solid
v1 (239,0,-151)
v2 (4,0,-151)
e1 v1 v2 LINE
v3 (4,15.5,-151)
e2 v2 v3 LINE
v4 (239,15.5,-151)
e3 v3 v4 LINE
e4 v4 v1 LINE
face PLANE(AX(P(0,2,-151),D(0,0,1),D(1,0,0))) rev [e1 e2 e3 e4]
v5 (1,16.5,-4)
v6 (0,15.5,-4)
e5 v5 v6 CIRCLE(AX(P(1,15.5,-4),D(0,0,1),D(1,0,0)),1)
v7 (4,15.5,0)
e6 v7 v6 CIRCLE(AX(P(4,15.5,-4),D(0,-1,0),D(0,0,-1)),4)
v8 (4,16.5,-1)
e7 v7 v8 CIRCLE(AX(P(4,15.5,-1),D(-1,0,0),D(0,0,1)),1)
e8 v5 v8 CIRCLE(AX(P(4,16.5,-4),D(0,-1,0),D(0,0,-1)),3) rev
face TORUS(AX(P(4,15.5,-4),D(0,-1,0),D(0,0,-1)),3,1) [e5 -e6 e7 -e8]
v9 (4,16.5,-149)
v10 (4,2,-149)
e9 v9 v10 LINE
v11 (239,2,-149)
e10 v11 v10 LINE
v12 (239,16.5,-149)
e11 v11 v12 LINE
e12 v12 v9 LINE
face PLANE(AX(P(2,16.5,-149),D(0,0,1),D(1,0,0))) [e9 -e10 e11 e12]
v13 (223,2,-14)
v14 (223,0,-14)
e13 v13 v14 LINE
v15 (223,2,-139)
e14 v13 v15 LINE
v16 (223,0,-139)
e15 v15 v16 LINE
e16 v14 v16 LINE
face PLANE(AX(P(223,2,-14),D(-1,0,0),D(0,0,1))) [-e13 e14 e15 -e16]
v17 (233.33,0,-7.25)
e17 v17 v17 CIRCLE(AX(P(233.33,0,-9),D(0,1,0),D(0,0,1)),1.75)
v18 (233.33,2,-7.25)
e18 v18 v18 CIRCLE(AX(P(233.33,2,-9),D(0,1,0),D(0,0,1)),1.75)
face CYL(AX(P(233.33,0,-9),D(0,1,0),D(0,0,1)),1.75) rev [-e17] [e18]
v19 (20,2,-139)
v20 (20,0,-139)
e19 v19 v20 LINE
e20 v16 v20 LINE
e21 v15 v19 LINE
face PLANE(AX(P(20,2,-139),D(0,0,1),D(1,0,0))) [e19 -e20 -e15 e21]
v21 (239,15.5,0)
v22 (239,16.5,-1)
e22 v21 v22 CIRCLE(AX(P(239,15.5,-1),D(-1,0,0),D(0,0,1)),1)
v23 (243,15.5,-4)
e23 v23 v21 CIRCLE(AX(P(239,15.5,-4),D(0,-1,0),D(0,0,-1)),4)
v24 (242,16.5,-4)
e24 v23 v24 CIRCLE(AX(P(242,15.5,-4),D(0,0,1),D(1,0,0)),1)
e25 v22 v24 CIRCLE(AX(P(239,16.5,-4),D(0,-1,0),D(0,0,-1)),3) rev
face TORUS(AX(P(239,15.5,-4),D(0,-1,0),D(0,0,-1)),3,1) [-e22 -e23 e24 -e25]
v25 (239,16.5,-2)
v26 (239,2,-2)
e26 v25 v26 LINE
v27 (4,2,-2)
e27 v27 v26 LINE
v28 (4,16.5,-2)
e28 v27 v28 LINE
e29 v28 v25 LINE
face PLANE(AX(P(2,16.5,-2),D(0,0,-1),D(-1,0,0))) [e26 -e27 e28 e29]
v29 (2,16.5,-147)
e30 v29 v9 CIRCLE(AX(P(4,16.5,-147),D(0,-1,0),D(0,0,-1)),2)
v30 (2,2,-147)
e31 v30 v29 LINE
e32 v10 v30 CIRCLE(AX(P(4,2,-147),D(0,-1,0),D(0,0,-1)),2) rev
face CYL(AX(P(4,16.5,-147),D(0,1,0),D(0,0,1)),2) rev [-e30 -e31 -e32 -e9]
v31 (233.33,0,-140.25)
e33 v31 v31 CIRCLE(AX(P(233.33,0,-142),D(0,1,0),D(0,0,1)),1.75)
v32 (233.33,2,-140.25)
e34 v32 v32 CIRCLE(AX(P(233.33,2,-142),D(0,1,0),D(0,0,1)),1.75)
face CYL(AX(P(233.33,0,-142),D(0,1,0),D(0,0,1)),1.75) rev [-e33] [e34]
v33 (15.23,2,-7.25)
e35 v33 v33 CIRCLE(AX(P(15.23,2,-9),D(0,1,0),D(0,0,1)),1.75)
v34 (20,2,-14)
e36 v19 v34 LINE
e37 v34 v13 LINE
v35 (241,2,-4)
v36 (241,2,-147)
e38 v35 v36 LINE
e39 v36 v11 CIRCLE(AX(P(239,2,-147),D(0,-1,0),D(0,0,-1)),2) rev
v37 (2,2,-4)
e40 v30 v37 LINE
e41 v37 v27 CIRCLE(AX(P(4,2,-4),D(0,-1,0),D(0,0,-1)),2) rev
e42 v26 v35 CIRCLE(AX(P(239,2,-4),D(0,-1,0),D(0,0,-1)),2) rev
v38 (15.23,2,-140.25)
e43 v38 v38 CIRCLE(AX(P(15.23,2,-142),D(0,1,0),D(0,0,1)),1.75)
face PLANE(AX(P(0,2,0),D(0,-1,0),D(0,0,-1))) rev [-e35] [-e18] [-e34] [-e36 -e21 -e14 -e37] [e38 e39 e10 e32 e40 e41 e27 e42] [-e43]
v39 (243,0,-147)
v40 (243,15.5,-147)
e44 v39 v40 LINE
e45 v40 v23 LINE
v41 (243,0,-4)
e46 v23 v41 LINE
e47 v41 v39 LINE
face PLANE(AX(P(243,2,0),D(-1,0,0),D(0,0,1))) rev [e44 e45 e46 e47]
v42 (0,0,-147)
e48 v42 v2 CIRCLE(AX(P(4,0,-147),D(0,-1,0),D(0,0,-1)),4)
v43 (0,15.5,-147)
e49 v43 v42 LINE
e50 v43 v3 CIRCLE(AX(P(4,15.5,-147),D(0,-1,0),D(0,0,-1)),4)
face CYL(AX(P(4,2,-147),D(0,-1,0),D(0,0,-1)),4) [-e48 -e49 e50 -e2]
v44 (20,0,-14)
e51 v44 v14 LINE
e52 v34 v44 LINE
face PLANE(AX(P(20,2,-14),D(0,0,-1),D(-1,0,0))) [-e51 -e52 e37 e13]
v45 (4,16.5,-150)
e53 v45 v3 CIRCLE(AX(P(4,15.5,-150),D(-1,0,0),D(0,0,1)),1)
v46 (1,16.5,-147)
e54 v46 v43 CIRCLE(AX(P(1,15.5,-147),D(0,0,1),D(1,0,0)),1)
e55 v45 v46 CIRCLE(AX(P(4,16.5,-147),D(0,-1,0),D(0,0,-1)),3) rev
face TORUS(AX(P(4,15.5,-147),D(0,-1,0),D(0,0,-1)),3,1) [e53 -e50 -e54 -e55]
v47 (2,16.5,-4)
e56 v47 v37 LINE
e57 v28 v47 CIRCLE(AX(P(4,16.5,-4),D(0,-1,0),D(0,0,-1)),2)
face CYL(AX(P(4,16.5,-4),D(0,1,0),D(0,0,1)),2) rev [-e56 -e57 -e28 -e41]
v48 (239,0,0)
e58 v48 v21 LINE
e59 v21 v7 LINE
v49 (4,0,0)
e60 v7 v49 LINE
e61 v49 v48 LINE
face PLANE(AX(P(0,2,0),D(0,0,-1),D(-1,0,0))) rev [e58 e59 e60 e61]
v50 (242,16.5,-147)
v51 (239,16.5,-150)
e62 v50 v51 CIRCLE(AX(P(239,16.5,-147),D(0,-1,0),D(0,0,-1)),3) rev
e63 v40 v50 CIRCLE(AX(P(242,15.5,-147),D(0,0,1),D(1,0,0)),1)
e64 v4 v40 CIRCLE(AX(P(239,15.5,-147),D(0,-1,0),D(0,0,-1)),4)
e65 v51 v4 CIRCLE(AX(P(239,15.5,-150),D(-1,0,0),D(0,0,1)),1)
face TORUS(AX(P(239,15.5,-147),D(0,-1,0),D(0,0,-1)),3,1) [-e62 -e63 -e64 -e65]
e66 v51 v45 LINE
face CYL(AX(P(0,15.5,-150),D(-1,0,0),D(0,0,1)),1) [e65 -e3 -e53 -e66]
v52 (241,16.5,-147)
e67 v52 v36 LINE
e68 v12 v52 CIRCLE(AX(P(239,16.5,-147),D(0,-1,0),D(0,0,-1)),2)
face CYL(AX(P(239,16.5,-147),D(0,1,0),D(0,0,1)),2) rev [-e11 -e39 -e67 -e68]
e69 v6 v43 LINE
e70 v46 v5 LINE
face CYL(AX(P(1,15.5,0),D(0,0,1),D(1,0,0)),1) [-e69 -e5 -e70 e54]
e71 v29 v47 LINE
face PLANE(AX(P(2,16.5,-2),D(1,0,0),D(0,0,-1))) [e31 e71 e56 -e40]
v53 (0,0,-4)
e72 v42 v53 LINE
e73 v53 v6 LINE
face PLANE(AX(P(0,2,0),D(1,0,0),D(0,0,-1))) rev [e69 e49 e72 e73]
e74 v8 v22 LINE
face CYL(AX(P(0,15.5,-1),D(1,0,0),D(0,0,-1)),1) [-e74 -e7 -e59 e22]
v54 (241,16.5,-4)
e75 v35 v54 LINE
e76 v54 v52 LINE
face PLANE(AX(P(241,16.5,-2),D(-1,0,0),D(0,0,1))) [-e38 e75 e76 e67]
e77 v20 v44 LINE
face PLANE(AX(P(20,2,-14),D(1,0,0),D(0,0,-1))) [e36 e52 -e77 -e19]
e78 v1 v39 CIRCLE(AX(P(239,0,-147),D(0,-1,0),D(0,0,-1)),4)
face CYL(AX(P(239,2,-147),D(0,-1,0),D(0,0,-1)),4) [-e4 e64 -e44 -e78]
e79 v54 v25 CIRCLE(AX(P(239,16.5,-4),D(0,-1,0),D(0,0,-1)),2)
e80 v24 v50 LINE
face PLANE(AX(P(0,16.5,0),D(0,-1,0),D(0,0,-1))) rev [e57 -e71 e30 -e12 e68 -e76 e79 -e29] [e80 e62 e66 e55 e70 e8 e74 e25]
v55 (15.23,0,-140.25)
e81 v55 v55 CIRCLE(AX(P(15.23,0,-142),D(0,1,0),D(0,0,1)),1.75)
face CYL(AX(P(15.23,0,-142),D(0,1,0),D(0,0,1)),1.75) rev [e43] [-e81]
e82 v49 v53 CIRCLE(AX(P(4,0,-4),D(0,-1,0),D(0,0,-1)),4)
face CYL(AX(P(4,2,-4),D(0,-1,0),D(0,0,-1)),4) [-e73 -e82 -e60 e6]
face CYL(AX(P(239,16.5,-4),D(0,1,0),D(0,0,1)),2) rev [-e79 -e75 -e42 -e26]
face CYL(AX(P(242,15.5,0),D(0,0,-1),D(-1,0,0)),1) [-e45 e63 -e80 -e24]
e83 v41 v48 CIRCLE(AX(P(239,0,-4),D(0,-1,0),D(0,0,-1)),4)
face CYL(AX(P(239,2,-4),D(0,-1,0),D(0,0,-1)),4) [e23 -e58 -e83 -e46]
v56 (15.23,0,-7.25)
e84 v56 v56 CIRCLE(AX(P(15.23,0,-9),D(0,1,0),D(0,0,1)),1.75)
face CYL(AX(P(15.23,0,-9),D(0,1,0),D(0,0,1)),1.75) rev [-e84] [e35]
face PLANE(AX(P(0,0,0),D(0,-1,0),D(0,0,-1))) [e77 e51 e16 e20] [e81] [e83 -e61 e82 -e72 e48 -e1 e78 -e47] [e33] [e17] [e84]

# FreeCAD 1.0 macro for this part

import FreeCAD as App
import Part
import Sketcher


def edges_at(feature, points):
    """Names of the edges that pass closest to the given points."""
    edges = feature.Shape.Edges
    near = lambda p: min(range(len(edges)), key=lambda i: edges[i].distToShape(Part.Vertex(*p))[0])
    return sorted({f"Edge{near(p) + 1}" for p in points})

doc = App.newDocument("Part")
body = doc.addObject("PartDesign::Body", "Body")

# Sketch on XZ plane
sketch1 = body.newObject("Sketcher::SketchObject", "Sketch")
sketch1.AttachmentSupport = (doc.getObject("XZ_Plane"), [""])
sketch1.MapMode = "FlatFace"
sketch1.addGeometry([
    Part.LineSegment(App.Vector(0, -151, 0), App.Vector(0, 0, 0)),  # 0
    Part.LineSegment(App.Vector(0, 0, 0), App.Vector(243, 0, 0)),  # 1
    Part.LineSegment(App.Vector(243, 0, 0), App.Vector(243, -151, 0)),  # 2
    Part.LineSegment(App.Vector(243, -151, 0), App.Vector(0, -151, 0)),  # 3
    Part.LineSegment(App.Vector(223, -14, 0), App.Vector(20, -14, 0)),  # 4
    Part.LineSegment(App.Vector(20, -14, 0), App.Vector(20, -139, 0)),  # 5
    Part.LineSegment(App.Vector(20, -139, 0), App.Vector(223, -139, 0)),  # 6
    Part.LineSegment(App.Vector(223, -139, 0), App.Vector(223, -14, 0)),  # 7
], False)
sketch1.addConstraint([
    Sketcher.Constraint("Coincident", 0, 2, 1, 1),
    Sketcher.Constraint("Coincident", 1, 2, 2, 1),
    Sketcher.Constraint("Coincident", 2, 2, 3, 1),
    Sketcher.Constraint("Coincident", 3, 2, 0, 1),
    Sketcher.Constraint("Coincident", 4, 2, 5, 1),
    Sketcher.Constraint("Coincident", 5, 2, 6, 1),
    Sketcher.Constraint("Coincident", 6, 2, 7, 1),
    Sketcher.Constraint("Coincident", 7, 2, 4, 1),
    Sketcher.Constraint("Vertical", 0),
    Sketcher.Constraint("Horizontal", 1),
    Sketcher.Constraint("Vertical", 2),
    Sketcher.Constraint("Horizontal", 3),
    Sketcher.Constraint("Horizontal", 4),
    Sketcher.Constraint("Vertical", 5),
    Sketcher.Constraint("Horizontal", 6),
    Sketcher.Constraint("Vertical", 7),
    Sketcher.Constraint("Coincident", 0, 2, -1, 1),
    Sketcher.Constraint("DistanceX", 1, 1, 1, 2, 243.0),
    Sketcher.Constraint("DistanceX", 4, 2, 4, 1, 203.0),
    Sketcher.Constraint("DistanceY", 0, 1, 0, 2, 151.0),
    Sketcher.Constraint("DistanceY", 5, 2, 5, 1, 125.0),
    Sketcher.Constraint("DistanceX", -1, 1, 4, 2, 20.0),
    Sketcher.Constraint("DistanceY", 4, 2, -1, 1, 14.0),
])
pad1 = body.newObject("PartDesign::Pad", "Pad")
pad1.Profile = sketch1
pad1.Length = 2
pad1.Reversed = True

# Sketch on XZ plane
sketch2 = body.newObject("Sketcher::SketchObject", "Sketch001")
sketch2.AttachmentSupport = (doc.getObject("XZ_Plane"), [""])
sketch2.MapMode = "FlatFace"
sketch2.AttachmentOffset = App.Placement(App.Vector(0, 0, -2), App.Rotation())
sketch2.addGeometry([
    Part.LineSegment(App.Vector(0, -151, 0), App.Vector(0, 0, 0)),  # 0
    Part.LineSegment(App.Vector(0, 0, 0), App.Vector(243, 0, 0)),  # 1
    Part.LineSegment(App.Vector(243, 0, 0), App.Vector(243, -151, 0)),  # 2
    Part.LineSegment(App.Vector(243, -151, 0), App.Vector(0, -151, 0)),  # 3
    Part.LineSegment(App.Vector(241, -2, 0), App.Vector(2, -2, 0)),  # 4
    Part.LineSegment(App.Vector(2, -2, 0), App.Vector(2, -149, 0)),  # 5
    Part.LineSegment(App.Vector(2, -149, 0), App.Vector(241, -149, 0)),  # 6
    Part.LineSegment(App.Vector(241, -149, 0), App.Vector(241, -2, 0)),  # 7
], False)
sketch2.addConstraint([
    Sketcher.Constraint("Coincident", 0, 2, 1, 1),
    Sketcher.Constraint("Coincident", 1, 2, 2, 1),
    Sketcher.Constraint("Coincident", 2, 2, 3, 1),
    Sketcher.Constraint("Coincident", 3, 2, 0, 1),
    Sketcher.Constraint("Coincident", 4, 2, 5, 1),
    Sketcher.Constraint("Coincident", 5, 2, 6, 1),
    Sketcher.Constraint("Coincident", 6, 2, 7, 1),
    Sketcher.Constraint("Coincident", 7, 2, 4, 1),
    Sketcher.Constraint("Vertical", 0),
    Sketcher.Constraint("Horizontal", 1),
    Sketcher.Constraint("Vertical", 2),
    Sketcher.Constraint("Horizontal", 3),
    Sketcher.Constraint("Horizontal", 4),
    Sketcher.Constraint("Vertical", 5),
    Sketcher.Constraint("Horizontal", 6),
    Sketcher.Constraint("Vertical", 7),
    Sketcher.Constraint("Coincident", 0, 2, -1, 1),
    Sketcher.Constraint("DistanceX", 1, 1, 1, 2, 243.0),
    Sketcher.Constraint("DistanceX", 4, 2, 4, 1, 239.0),
    Sketcher.Constraint("DistanceY", 0, 1, 0, 2, 151.0),
    Sketcher.Constraint("DistanceY", 5, 2, 5, 1, 147.0),
    Sketcher.Constraint("DistanceX", -1, 1, 4, 2, 2.0),
    Sketcher.Constraint("DistanceY", 4, 2, -1, 1, 2.0),
])
pad2 = body.newObject("PartDesign::Pad", "Pad001")
pad2.Profile = sketch2
pad2.Length = 14.5
pad2.Reversed = True

# Sketch on XZ plane
sketch3 = body.newObject("Sketcher::SketchObject", "Sketch002")
sketch3.AttachmentSupport = (doc.getObject("XZ_Plane"), [""])
sketch3.MapMode = "FlatFace"
sketch3.AttachmentOffset = App.Placement(App.Vector(0, 0, -2), App.Rotation())
sketch3.addGeometry([
    Part.Circle(App.Vector(15.2, -142, 0), App.Vector(0, 0, 1), 1.8),
    Part.Circle(App.Vector(233.3, -142, 0), App.Vector(0, 0, 1), 1.8),
    Part.Circle(App.Vector(15.2, -9, 0), App.Vector(0, 0, 1), 1.8),
    Part.Circle(App.Vector(233.3, -9, 0), App.Vector(0, 0, 1), 1.8),
], False)
sketch3.addConstraint([
    Sketcher.Constraint("Equal", 0, 1),
    Sketcher.Constraint("Equal", 1, 2),
    Sketcher.Constraint("Equal", 2, 3),
    Sketcher.Constraint("Horizontal", 0, 3, 1, 3),
    Sketcher.Constraint("Horizontal", 2, 3, 3, 3),
    Sketcher.Constraint("Vertical", 0, 3, 2, 3),
    Sketcher.Constraint("Vertical", 1, 3, 3, 3),
    Sketcher.Constraint("Diameter", 0, 3.5),
    Sketcher.Constraint("DistanceY", 0, 3, -1, 1, 142.0),
    Sketcher.Constraint("DistanceY", 2, 3, -1, 1, 9.0),
    Sketcher.Constraint("DistanceX", 0, 3, 1, 3, 218.1),
    Sketcher.Constraint("DistanceX", -1, 1, 0, 3, 15.23),
])
pocket1 = body.newObject("PartDesign::Pocket", "Pocket")
pocket1.Profile = sketch3
pocket1.Type = "ThroughAll"
pocket1.Reversed = True
doc.recompute()

fillet = body.newObject("PartDesign::Fillet", "Fillet")
fillet.Base = (pocket1, edges_at(pocket1, [
    (2, 9.25, -2),
    (241, 9.25, -2),
    (241, 9.25, -149),
    (2, 9.25, -149),
]))
fillet.Radius = 2
doc.recompute()

fillet2 = body.newObject("PartDesign::Fillet", "Fillet001")
fillet2.Base = (fillet, edges_at(fillet, [
    (0, 8.25, -151),
    (243, 8.25, -151),
    (243, 8.25, 0),
    (0, 8.25, 0),
]))
fillet2.Radius = 4
doc.recompute()

fillet3 = body.newObject("PartDesign::Fillet", "Fillet002")
fillet3.Base = (fillet2, edges_at(fillet2, [
    (121.5, 16.5, -151),
    (121.5, 16.5, 0),
    (243, 16.5, -75.5),
    (1.172, 16.5, -1.172),
    (241.828, 16.5, -1.172),
    (241.828, 16.5, -149.828),
    (1.172, 16.5, -149.828),
    (0, 16.5, -75.5),
]))
fillet3.Radius = 1

doc.recompute()
